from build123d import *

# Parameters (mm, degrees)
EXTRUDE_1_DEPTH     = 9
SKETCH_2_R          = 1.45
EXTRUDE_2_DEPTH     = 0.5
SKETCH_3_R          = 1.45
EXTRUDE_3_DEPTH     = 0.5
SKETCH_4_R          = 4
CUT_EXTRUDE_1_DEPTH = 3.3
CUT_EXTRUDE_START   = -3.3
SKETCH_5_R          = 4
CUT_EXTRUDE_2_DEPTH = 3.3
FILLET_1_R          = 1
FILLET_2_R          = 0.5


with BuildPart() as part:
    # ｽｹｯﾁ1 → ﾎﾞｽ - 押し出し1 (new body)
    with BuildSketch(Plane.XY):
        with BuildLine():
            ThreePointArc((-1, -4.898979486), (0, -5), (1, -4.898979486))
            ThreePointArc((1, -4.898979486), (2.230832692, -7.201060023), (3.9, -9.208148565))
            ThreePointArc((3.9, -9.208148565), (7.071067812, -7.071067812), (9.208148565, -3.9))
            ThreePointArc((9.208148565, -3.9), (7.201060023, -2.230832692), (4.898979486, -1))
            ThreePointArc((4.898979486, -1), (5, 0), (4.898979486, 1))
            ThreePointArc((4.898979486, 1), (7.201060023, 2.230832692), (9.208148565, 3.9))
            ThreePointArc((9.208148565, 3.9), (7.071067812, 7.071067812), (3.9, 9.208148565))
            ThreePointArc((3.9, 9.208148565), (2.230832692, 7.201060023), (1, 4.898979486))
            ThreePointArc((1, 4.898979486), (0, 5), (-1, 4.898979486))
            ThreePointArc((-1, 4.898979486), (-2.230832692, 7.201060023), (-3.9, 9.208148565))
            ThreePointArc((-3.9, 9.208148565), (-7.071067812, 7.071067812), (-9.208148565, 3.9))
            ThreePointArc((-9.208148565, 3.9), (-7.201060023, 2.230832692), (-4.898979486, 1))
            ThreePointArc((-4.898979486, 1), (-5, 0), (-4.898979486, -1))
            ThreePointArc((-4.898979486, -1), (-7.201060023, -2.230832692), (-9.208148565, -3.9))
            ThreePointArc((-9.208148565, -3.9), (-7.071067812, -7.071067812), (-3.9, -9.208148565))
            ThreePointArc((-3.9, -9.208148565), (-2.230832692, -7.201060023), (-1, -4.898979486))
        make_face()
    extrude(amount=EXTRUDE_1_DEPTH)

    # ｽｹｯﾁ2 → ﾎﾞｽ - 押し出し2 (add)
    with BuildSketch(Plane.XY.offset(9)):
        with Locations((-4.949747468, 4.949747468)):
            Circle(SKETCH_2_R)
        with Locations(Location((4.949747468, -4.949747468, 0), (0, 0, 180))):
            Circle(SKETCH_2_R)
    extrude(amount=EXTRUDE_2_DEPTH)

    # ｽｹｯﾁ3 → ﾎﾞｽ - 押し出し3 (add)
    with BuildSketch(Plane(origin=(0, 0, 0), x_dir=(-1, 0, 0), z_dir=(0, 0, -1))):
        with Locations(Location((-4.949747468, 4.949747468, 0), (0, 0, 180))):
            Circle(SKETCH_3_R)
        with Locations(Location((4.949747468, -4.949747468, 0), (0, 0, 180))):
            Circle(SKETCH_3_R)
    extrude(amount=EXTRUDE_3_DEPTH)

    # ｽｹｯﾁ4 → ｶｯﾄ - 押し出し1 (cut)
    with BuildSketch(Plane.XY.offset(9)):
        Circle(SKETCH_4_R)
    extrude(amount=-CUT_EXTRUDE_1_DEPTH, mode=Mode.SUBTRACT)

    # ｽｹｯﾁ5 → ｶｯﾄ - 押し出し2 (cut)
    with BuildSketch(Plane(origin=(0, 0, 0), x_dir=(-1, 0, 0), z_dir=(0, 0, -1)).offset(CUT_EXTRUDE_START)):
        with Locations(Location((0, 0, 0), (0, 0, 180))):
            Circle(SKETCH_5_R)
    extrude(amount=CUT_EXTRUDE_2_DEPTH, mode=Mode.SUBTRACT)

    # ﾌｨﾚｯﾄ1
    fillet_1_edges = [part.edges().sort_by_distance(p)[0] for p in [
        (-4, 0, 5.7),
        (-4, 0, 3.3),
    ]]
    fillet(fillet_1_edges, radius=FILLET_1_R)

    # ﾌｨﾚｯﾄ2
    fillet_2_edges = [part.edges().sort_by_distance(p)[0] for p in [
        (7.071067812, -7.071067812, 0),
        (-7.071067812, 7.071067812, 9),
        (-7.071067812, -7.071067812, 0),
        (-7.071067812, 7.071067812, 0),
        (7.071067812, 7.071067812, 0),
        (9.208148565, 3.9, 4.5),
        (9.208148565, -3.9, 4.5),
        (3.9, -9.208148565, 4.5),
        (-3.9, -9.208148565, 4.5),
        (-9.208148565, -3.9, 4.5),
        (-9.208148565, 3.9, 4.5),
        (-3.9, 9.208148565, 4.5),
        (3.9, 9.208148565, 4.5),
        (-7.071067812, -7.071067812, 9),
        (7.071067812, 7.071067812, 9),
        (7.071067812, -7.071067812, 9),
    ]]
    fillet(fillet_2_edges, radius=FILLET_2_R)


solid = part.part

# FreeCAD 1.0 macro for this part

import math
import FreeCAD as App
import Part
import Sketcher


def edges_at(feature, points):
    """Names of the edges that pass closest to the given points."""
    edges = feature.Shape.Edges
    near = lambda p: min(range(len(edges)), key=lambda i: edges[i].distToShape(Part.Vertex(*p))[0])
    return sorted({f"Edge{near(p) + 1}" for p in points})

doc = App.newDocument("Part")
body = doc.addObject("PartDesign::Body", "Body")

# Sketch on XY plane
sketch1 = doc.addObject("Sketcher::SketchObject", "Sketch")
body.addObject(sketch1)
sketch1.AttachmentSupport = (doc.XY_Plane, [""])
sketch1.MapMode = "FlatFace"
sketch1.addGeometry([
    Part.ArcOfCircle(Part.Circle(App.Vector(0, 0, 0), App.Vector(0, 0, 1), 5), math.radians(-102), math.radians(-78)),  # 0
    Part.ArcOfCircle(Part.Circle(App.Vector(12.9, 0, 0), App.Vector(0, 0, 1), 12.9), math.radians(-158), math.radians(-134)),  # 1
    Part.ArcOfCircle(Part.Circle(App.Vector(0, 0, 0), App.Vector(0, 0, 1), 10), math.radians(-67), math.radians(-23)),  # 2
    Part.ArcOfCircle(Part.Circle(App.Vector(0, -12.9, 0), App.Vector(0, 0, 1), 12.9), math.radians(44), math.radians(68)),  # 3
    Part.ArcOfCircle(Part.Circle(App.Vector(0, 0, 0), App.Vector(0, 0, 1), 5), math.radians(-12), math.radians(12)),  # 4
    Part.ArcOfCircle(Part.Circle(App.Vector(0, 12.9, 0), App.Vector(0, 0, 1), 12.9), math.radians(-68), math.radians(-44)),  # 5
    Part.ArcOfCircle(Part.Circle(App.Vector(0, 0, 0), App.Vector(0, 0, 1), 10), math.radians(23), math.radians(67)),  # 6
    Part.ArcOfCircle(Part.Circle(App.Vector(12.9, 0, 0), App.Vector(0, 0, 1), 12.9), math.radians(134), math.radians(158)),  # 7
    Part.ArcOfCircle(Part.Circle(App.Vector(0, 0, 0), App.Vector(0, 0, 1), 5), math.radians(78), math.radians(102)),  # 8
    Part.ArcOfCircle(Part.Circle(App.Vector(-12.9, 0, 0), App.Vector(0, 0, 1), 12.9), math.radians(22), math.radians(46)),  # 9
    Part.ArcOfCircle(Part.Circle(App.Vector(0, 0, 0), App.Vector(0, 0, 1), 10), math.radians(113), math.radians(157)),  # 10
    Part.ArcOfCircle(Part.Circle(App.Vector(0, 12.9, 0), App.Vector(0, 0, 1), 12.9), math.radians(-136), math.radians(-112)),  # 11
    Part.ArcOfCircle(Part.Circle(App.Vector(0, 0, 0), App.Vector(0, 0, 1), 5), math.radians(168), math.radians(192)),  # 12
    Part.ArcOfCircle(Part.Circle(App.Vector(0, -12.9, 0), App.Vector(0, 0, 1), 12.9), math.radians(112), math.radians(136)),  # 13
    Part.ArcOfCircle(Part.Circle(App.Vector(0, 0, 0), App.Vector(0, 0, 1), 10), math.radians(-157), math.radians(-113)),  # 14
    Part.ArcOfCircle(Part.Circle(App.Vector(-12.9, 0, 0), App.Vector(0, 0, 1), 12.9), math.radians(-46), math.radians(-22)),  # 15
], False)
sketch1.addConstraint([
    Sketcher.Constraint("Coincident", 0, 2, 1, 1),
    Sketcher.Constraint("Coincident", 1, 2, 2, 1),
    Sketcher.Constraint("Coincident", 2, 2, 3, 1),
    Sketcher.Constraint("Coincident", 3, 2, 4, 1),
    Sketcher.Constraint("Coincident", 4, 2, 5, 1),
    Sketcher.Constraint("Coincident", 5, 2, 6, 1),
    Sketcher.Constraint("Coincident", 6, 2, 7, 1),
    Sketcher.Constraint("Coincident", 7, 2, 8, 1),
    Sketcher.Constraint("Coincident", 8, 2, 9, 1),
    Sketcher.Constraint("Coincident", 9, 2, 10, 1),
    Sketcher.Constraint("Coincident", 10, 2, 11, 1),
    Sketcher.Constraint("Coincident", 11, 2, 12, 1),
    Sketcher.Constraint("Coincident", 12, 2, 13, 1),
    Sketcher.Constraint("Coincident", 13, 2, 14, 1),
    Sketcher.Constraint("Coincident", 14, 2, 15, 1),
    Sketcher.Constraint("Coincident", 15, 2, 0, 1),
    Sketcher.Constraint("Coincident", 0, 3, -1, 1),
    Sketcher.Constraint("Coincident", 2, 3, -1, 1),
    Sketcher.Constraint("Coincident", 4, 3, -1, 1),
    Sketcher.Constraint("Coincident", 6, 3, -1, 1),
    Sketcher.Constraint("Coincident", 8, 3, -1, 1),
    Sketcher.Constraint("Coincident", 10, 3, -1, 1),
    Sketcher.Constraint("Coincident", 12, 3, -1, 1),
    Sketcher.Constraint("Coincident", 14, 3, -1, 1),
    Sketcher.Constraint("Coincident", 7, 3, 1, 3),
    Sketcher.Constraint("Coincident", 11, 3, 5, 3),
    Sketcher.Constraint("Coincident", 13, 3, 3, 3),
    Sketcher.Constraint("Coincident", 15, 3, 9, 3),
    Sketcher.Constraint("Equal", 1, 3),
    Sketcher.Constraint("Equal", 0, 4),
    Sketcher.Constraint("Equal", 3, 5),
    Sketcher.Constraint("Equal", 2, 6),
    Sketcher.Constraint("Equal", 5, 7),
    Sketcher.Constraint("Equal", 4, 8),
    Sketcher.Constraint("Equal", 7, 9),
    Sketcher.Constraint("Equal", 6, 10),
    Sketcher.Constraint("Equal", 9, 11),
    Sketcher.Constraint("Equal", 8, 12),
    Sketcher.Constraint("Equal", 11, 13),
    Sketcher.Constraint("Equal", 10, 14),
    Sketcher.Constraint("Equal", 13, 15),
    Sketcher.Constraint("Symmetric", 3, 3, 5, 3, -1, 1),
    Sketcher.Constraint("Symmetric", 1, 3, 9, 3, -1, 1),
    Sketcher.Constraint("PointOnObject", 1, 3, -1),
    Sketcher.Constraint("PointOnObject", 3, 3, -2),
    Sketcher.Constraint("Radius", 0, 5.0),
    Sketcher.Constraint("Radius", 2, 10.0),
    Sketcher.Constraint("DistanceX", -1, 1, 0, 2, 1.0),
    Sketcher.Constraint("DistanceY", 3, 2, -1, 1, 1.0),
    Sketcher.Constraint("DistanceX", -1, 1, 1, 2, 3.9),
])
pad1 = doc.addObject("PartDesign::Pad", "Pad")
body.addObject(pad1)
pad1.Profile = sketch1
pad1.Length = 9

# Sketch on XY plane
sketch2 = doc.addObject("Sketcher::SketchObject", "Sketch001")
body.addObject(sketch2)
sketch2.AttachmentSupport = (doc.XY_Plane, [""])
sketch2.MapMode = "FlatFace"
sketch2.AttachmentOffset = App.Placement(App.Vector(0, 0, 9), App.Rotation())
sketch2.addGeometry([
    Part.Circle(App.Vector(-4.9, 4.9, 0), App.Vector(0, 0, 1), 1.4),
    Part.Circle(App.Vector(4.9, -4.9, 0), App.Vector(0, 0, 1), 1.4),
], False)
sketch2.addConstraint([
    Sketcher.Constraint("Equal", 0, 1),
    Sketcher.Constraint("Symmetric", 0, 3, 1, 3, -1, 1),
    Sketcher.Constraint("Diameter", 0, 2.9),
    Sketcher.Constraint("DistanceX", 0, 3, -1, 1, 4.949747),
    Sketcher.Constraint("DistanceY", -1, 1, 0, 3, 4.949747),
])
pad2 = doc.addObject("PartDesign::Pad", "Pad001")
body.addObject(pad2)
pad2.Profile = sketch2
pad2.Length = 0.5

# Sketch on XY plane
sketch3 = doc.addObject("Sketcher::SketchObject", "Sketch002")
body.addObject(sketch3)
sketch3.AttachmentSupport = (doc.XY_Plane, [""])
sketch3.MapMode = "FlatFace"
sketch3.addGeometry([
    Part.Circle(App.Vector(4.9, 4.9, 0), App.Vector(0, 0, 1), 1.4),
    Part.Circle(App.Vector(-4.9, -4.9, 0), App.Vector(0, 0, 1), 1.4),
], False)
sketch3.addConstraint([
    Sketcher.Constraint("Equal", 0, 1),
    Sketcher.Constraint("Symmetric", 0, 3, 1, 3, -1, 1),
    Sketcher.Constraint("Diameter", 0, 2.9),
    Sketcher.Constraint("DistanceX", -1, 1, 0, 3, 4.949747),
    Sketcher.Constraint("DistanceY", -1, 1, 0, 3, 4.949747),
])
pad3 = doc.addObject("PartDesign::Pad", "Pad002")
body.addObject(pad3)
pad3.Profile = sketch3
pad3.Length = 0.5
pad3.Reversed = True

# Sketch on XY plane
sketch4 = doc.addObject("Sketcher::SketchObject", "Sketch003")
body.addObject(sketch4)
sketch4.AttachmentSupport = (doc.XY_Plane, [""])
sketch4.MapMode = "FlatFace"
sketch4.AttachmentOffset = App.Placement(App.Vector(0, 0, 9), App.Rotation())
sketch4.addGeometry(Part.Circle(App.Vector(0, 0, 0), App.Vector(0, 0, 1), 4), False)
sketch4.addConstraint([
    Sketcher.Constraint("Coincident", 0, 3, -1, 1),
    Sketcher.Constraint("Diameter", 0, 8.0),
])
pocket1 = doc.addObject("PartDesign::Pocket", "Pocket")
body.addObject(pocket1)
pocket1.Profile = sketch4
pocket1.Length = 3.3

# Sketch on XY plane
sketch5 = doc.addObject("Sketcher::SketchObject", "Sketch004")
body.addObject(sketch5)
sketch5.AttachmentSupport = (doc.XY_Plane, [""])
sketch5.MapMode = "FlatFace"
sketch5.AttachmentOffset = App.Placement(App.Vector(0, 0, 3.3), App.Rotation())
sketch5.addGeometry(Part.Circle(App.Vector(0, 0, 0), App.Vector(0, 0, 1), 4), False)
sketch5.addConstraint([
    Sketcher.Constraint("Coincident", 0, 3, -1, 1),
    Sketcher.Constraint("Diameter", 0, 8.0),
])
pocket2 = doc.addObject("PartDesign::Pocket", "Pocket001")
body.addObject(pocket2)
pocket2.Profile = sketch5
pocket2.Length = 3.3
doc.recompute()

fillet = doc.addObject("PartDesign::Fillet", "Fillet")
body.addObject(fillet)
fillet.Base = (pocket2, edges_at(pocket2, [(-4, 0, 5.7), (-4, 0, 3.3)]))
fillet.Radius = 1
doc.recompute()

fillet2 = doc.addObject("PartDesign::Fillet", "Fillet001")
body.addObject(fillet2)
fillet2.Base = (fillet, edges_at(fillet, [
    (7.071, -7.071, 0),
    (-7.071, 7.071, 9),
    (-7.071, -7.071, 0),
    (-7.071, 7.071, 0),
    (7.071, 7.071, 0),
    (9.208, 3.9, 4.5),
    (9.208, -3.9, 4.5),
    (3.9, -9.208, 4.5),
    (-3.9, -9.208, 4.5),
    (-9.208, -3.9, 4.5),
    (-9.208, 3.9, 4.5),
    (-3.9, 9.208, 4.5),
    (3.9, 9.208, 4.5),
    (-7.071, -7.071, 9),
    (7.071, 7.071, 9),
    (7.071, -7.071, 9),
]))
fillet2.Radius = 0.5

doc.recompute()
